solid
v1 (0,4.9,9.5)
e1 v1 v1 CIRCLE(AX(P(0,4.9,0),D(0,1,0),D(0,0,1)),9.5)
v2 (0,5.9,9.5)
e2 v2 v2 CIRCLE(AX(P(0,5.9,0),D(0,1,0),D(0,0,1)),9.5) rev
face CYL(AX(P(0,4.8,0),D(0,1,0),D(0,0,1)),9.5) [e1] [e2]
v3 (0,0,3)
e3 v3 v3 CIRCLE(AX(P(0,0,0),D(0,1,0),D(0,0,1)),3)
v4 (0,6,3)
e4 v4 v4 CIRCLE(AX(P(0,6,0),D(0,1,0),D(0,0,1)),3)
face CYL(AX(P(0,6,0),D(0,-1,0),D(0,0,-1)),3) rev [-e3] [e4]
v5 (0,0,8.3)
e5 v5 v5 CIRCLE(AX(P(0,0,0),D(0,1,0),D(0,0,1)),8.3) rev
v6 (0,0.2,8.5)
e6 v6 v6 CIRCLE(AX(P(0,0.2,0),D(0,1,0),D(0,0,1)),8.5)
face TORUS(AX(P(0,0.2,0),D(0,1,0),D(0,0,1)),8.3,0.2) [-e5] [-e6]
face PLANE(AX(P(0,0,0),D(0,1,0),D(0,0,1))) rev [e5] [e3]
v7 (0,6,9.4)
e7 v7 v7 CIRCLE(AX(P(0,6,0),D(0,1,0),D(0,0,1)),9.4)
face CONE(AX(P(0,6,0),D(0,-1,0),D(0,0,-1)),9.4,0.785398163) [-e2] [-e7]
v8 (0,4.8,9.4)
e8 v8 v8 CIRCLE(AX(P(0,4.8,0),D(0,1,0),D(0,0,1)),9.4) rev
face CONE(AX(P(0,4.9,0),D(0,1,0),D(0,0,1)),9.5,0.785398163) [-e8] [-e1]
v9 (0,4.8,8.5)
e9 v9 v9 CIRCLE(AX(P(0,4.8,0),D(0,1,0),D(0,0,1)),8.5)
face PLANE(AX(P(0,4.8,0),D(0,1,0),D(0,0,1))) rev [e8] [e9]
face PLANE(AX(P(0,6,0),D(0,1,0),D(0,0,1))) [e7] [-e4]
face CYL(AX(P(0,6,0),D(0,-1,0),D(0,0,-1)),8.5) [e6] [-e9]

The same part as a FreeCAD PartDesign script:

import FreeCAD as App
import Part
import Sketcher

V = App.Vector
Q = App.Units.Quantity


def edges_at(feature, points):
    """Names of the edges that pass closest to the given points."""
    edges = feature.Shape.Edges
    near = lambda p: min(range(len(edges)), key=lambda i: edges[i].distToShape(Part.Vertex(*p))[0])
    return sorted({f"Edge{near(p) + 1}" for p in points})

doc = App.newDocument("Part")
body = doc.addObject("PartDesign::Body", "Body")

# Sketch on XZ plane
sketch1 = body.newObject("Sketcher::SketchObject", "Sketch")
sketch1.AttachmentSupport = (doc.getObject("XZ_Plane"), [""])
sketch1.MapMode = "FlatFace"
sketch1.addGeometry([
    Part.Circle(V(0, 0, 0), V(0, 0, 1), 8.5),
    Part.Circle(V(0, 0, 0), V(0, 0, 1), 3),
], False)
sketch1.addConstraint([
    Sketcher.Constraint("Coincident", 0, 3, -1, 1),
    Sketcher.Constraint("Coincident", 1, 3, -1, 1),
    Sketcher.Constraint("Diameter", 0, Q("17 mm")),
    Sketcher.Constraint("Diameter", 1, Q("6 mm")),
])
pad1 = body.newObject("PartDesign::Pad", "Pad")
pad1.Profile = sketch1
pad1.Length = 6
pad1.Reversed = True

# Sketch on XZ plane
sketch2 = body.newObject("Sketcher::SketchObject", "Sketch001")
sketch2.AttachmentSupport = (doc.getObject("XZ_Plane"), [""])
sketch2.MapMode = "FlatFace"
sketch2.AttachmentOffset = App.Placement(V(0, 0, -4.8), App.Rotation())
sketch2.addGeometry([
    Part.Circle(V(0, 0, 0), V(0, 0, 1), 9.5),
    Part.Circle(V(0, 0, 0), V(0, 0, 1), 3),
], False)
sketch2.addConstraint([
    Sketcher.Constraint("Coincident", 0, 3, -1, 1),
    Sketcher.Constraint("Coincident", 1, 3, -1, 1),
    Sketcher.Constraint("Diameter", 0, Q("19 mm")),
    Sketcher.Constraint("Diameter", 1, Q("6 mm")),
])
pad2 = body.newObject("PartDesign::Pad", "Pad001")
pad2.Profile = sketch2
pad2.Length = 1.2
pad2.Reversed = True
doc.recompute()

fillet = body.newObject("PartDesign::Fillet", "Fillet")
fillet.Base = (pad2, edges_at(pad2, [(0, 0, -8.5)]))
fillet.Radius = 0.2
doc.recompute()

chamfer = body.newObject("PartDesign::Chamfer", "Chamfer")
chamfer.Base = (fillet, edges_at(fillet, [(0, 6, -9.5), (0, 4.8, -9.5)]))
chamfer.Size = 0.1

doc.recompute()
